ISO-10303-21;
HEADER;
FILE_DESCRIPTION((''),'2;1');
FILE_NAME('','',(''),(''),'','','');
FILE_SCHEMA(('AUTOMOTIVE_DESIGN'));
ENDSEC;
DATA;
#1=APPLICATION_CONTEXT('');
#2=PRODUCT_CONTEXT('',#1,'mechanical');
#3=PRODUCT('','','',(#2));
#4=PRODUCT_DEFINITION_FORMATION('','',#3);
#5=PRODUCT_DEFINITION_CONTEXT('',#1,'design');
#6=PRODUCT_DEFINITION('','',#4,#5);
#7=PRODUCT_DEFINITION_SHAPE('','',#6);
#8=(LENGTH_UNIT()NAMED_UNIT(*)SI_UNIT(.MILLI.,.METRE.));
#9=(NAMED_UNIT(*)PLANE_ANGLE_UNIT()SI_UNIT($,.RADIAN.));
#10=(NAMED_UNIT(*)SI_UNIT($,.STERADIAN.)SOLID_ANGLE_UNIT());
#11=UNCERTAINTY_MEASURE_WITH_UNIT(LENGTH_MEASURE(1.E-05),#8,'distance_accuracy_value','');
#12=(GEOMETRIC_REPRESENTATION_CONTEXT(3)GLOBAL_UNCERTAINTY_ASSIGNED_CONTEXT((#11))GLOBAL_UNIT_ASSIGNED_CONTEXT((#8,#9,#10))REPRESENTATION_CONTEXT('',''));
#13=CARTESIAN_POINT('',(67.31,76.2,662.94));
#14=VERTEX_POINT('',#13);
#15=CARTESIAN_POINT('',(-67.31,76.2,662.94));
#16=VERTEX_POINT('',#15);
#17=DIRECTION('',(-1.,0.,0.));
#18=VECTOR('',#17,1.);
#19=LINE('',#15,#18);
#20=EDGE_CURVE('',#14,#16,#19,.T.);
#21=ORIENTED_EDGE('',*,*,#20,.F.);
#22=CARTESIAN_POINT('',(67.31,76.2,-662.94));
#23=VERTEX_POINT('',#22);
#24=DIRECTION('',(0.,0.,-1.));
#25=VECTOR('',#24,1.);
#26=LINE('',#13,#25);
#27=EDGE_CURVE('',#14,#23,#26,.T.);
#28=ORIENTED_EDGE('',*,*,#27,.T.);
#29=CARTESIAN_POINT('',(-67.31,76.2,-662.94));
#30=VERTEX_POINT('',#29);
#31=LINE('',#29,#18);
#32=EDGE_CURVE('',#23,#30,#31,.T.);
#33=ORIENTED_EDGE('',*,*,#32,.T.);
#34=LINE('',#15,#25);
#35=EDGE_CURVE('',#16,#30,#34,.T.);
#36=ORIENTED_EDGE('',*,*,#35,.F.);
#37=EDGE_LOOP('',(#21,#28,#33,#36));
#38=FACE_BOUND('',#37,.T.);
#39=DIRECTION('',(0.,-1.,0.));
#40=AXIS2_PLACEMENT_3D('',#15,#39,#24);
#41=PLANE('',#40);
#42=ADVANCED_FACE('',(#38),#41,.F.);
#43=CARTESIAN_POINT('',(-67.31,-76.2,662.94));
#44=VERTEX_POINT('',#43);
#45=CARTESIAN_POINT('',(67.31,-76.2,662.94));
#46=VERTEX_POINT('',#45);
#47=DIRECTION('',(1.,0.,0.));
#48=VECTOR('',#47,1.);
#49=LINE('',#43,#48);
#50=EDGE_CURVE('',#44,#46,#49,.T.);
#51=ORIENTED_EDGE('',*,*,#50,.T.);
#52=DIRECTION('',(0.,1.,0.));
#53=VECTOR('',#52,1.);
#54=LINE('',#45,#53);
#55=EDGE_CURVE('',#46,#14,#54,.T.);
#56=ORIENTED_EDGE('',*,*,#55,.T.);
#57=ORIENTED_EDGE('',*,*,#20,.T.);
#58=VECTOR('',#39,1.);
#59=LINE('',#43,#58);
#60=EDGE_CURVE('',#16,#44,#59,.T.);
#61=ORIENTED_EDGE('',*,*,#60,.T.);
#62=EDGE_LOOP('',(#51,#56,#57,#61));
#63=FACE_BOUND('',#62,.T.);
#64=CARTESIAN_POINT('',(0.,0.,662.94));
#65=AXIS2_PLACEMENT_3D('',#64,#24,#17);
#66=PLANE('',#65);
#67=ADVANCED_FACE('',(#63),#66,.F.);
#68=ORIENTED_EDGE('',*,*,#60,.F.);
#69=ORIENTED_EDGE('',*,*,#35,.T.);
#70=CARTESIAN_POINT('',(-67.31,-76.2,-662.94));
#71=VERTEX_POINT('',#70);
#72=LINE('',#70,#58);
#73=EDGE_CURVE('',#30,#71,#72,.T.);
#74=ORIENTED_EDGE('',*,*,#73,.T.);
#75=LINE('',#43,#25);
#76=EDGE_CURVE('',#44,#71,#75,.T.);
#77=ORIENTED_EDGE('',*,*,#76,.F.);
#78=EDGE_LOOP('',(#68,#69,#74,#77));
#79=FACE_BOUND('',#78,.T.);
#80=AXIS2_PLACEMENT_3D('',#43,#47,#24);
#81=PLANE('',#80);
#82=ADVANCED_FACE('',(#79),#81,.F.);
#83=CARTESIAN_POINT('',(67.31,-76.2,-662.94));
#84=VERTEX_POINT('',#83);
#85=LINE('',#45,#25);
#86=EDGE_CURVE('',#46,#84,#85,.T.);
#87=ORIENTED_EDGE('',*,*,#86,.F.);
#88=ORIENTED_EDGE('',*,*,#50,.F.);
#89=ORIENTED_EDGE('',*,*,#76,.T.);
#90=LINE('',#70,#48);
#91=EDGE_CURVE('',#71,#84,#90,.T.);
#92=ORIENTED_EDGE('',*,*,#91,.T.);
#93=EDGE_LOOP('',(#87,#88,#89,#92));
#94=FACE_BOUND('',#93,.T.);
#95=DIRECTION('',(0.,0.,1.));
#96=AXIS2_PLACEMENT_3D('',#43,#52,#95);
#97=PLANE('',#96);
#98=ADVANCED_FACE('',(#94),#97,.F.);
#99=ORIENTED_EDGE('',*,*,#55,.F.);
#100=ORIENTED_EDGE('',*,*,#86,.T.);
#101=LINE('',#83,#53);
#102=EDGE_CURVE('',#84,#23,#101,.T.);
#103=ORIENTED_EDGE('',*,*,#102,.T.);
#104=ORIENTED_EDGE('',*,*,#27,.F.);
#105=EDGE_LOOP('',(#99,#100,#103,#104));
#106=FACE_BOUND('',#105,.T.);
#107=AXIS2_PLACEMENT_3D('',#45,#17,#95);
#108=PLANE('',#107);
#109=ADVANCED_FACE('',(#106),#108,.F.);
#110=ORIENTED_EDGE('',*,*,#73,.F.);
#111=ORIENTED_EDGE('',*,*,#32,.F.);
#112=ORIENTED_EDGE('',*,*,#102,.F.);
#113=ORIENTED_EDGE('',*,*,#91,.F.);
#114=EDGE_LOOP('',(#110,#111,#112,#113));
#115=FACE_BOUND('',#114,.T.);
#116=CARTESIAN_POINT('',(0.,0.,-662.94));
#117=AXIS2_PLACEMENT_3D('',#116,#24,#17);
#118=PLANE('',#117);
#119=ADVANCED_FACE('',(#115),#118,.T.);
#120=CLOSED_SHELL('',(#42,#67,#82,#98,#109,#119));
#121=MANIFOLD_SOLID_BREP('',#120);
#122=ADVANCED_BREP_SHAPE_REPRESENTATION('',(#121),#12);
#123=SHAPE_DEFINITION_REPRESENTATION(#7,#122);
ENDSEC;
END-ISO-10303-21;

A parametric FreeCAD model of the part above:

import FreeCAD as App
import Part
import Sketcher
from FreeCAD import Vector
Q = App.Units.Quantity

doc = App.newDocument("Part")
body = doc.addObject("PartDesign::Body", "Body")

# Sketch on XY plane
sketch1 = body.newObject("Sketcher::SketchObject", "Sketch")
sketch1.AttachmentSupport = (doc.getObject("XY_Plane"), [""])
sketch1.MapMode = "FlatFace"
sketch1.addGeometry(Part.LineSegment(Vector(-67.31, 76.2, 0), Vector(-67.31, -76.2, 0)), False)
sketch1.addGeometry(Part.LineSegment(Vector(-67.31, -76.2, 0), Vector(67.31, -76.2, 0)), False)
sketch1.addGeometry(Part.LineSegment(Vector(67.31, -76.2, 0), Vector(67.31, 76.2, 0)), False)
sketch1.addGeometry(Part.LineSegment(Vector(67.31, 76.2, 0), Vector(-67.31, 76.2, 0)), False)
sketch1.addConstraint(Sketcher.Constraint("Coincident", 0, 2, 1, 1))
sketch1.addConstraint(Sketcher.Constraint("Coincident", 1, 2, 2, 1))
sketch1.addConstraint(Sketcher.Constraint("Coincident", 2, 2, 3, 1))
sketch1.addConstraint(Sketcher.Constraint("Coincident", 3, 2, 0, 1))
sketch1.addConstraint(Sketcher.Constraint("Vertical", 0))
sketch1.addConstraint(Sketcher.Constraint("Horizontal", 1))
sketch1.addConstraint(Sketcher.Constraint("Vertical", 2))
sketch1.addConstraint(Sketcher.Constraint("Horizontal", 3))
sketch1.addConstraint(Sketcher.Constraint("Symmetric", 0, 2, 2, 2, -1, 1))
sketch1.addConstraint(Sketcher.Constraint("DistanceY", 0, 2, 0, 1, Q("6 in")))
sketch1.addConstraint(Sketcher.Constraint("DistanceX", 1, 1, 1, 2, Q("5.3 in")))
pad1 = body.newObject("PartDesign::Pad", "Pad")
pad1.Profile = sketch1
pad1.Length = Q("52.2 in")
pad1.Midplane = True

doc.recompute()
